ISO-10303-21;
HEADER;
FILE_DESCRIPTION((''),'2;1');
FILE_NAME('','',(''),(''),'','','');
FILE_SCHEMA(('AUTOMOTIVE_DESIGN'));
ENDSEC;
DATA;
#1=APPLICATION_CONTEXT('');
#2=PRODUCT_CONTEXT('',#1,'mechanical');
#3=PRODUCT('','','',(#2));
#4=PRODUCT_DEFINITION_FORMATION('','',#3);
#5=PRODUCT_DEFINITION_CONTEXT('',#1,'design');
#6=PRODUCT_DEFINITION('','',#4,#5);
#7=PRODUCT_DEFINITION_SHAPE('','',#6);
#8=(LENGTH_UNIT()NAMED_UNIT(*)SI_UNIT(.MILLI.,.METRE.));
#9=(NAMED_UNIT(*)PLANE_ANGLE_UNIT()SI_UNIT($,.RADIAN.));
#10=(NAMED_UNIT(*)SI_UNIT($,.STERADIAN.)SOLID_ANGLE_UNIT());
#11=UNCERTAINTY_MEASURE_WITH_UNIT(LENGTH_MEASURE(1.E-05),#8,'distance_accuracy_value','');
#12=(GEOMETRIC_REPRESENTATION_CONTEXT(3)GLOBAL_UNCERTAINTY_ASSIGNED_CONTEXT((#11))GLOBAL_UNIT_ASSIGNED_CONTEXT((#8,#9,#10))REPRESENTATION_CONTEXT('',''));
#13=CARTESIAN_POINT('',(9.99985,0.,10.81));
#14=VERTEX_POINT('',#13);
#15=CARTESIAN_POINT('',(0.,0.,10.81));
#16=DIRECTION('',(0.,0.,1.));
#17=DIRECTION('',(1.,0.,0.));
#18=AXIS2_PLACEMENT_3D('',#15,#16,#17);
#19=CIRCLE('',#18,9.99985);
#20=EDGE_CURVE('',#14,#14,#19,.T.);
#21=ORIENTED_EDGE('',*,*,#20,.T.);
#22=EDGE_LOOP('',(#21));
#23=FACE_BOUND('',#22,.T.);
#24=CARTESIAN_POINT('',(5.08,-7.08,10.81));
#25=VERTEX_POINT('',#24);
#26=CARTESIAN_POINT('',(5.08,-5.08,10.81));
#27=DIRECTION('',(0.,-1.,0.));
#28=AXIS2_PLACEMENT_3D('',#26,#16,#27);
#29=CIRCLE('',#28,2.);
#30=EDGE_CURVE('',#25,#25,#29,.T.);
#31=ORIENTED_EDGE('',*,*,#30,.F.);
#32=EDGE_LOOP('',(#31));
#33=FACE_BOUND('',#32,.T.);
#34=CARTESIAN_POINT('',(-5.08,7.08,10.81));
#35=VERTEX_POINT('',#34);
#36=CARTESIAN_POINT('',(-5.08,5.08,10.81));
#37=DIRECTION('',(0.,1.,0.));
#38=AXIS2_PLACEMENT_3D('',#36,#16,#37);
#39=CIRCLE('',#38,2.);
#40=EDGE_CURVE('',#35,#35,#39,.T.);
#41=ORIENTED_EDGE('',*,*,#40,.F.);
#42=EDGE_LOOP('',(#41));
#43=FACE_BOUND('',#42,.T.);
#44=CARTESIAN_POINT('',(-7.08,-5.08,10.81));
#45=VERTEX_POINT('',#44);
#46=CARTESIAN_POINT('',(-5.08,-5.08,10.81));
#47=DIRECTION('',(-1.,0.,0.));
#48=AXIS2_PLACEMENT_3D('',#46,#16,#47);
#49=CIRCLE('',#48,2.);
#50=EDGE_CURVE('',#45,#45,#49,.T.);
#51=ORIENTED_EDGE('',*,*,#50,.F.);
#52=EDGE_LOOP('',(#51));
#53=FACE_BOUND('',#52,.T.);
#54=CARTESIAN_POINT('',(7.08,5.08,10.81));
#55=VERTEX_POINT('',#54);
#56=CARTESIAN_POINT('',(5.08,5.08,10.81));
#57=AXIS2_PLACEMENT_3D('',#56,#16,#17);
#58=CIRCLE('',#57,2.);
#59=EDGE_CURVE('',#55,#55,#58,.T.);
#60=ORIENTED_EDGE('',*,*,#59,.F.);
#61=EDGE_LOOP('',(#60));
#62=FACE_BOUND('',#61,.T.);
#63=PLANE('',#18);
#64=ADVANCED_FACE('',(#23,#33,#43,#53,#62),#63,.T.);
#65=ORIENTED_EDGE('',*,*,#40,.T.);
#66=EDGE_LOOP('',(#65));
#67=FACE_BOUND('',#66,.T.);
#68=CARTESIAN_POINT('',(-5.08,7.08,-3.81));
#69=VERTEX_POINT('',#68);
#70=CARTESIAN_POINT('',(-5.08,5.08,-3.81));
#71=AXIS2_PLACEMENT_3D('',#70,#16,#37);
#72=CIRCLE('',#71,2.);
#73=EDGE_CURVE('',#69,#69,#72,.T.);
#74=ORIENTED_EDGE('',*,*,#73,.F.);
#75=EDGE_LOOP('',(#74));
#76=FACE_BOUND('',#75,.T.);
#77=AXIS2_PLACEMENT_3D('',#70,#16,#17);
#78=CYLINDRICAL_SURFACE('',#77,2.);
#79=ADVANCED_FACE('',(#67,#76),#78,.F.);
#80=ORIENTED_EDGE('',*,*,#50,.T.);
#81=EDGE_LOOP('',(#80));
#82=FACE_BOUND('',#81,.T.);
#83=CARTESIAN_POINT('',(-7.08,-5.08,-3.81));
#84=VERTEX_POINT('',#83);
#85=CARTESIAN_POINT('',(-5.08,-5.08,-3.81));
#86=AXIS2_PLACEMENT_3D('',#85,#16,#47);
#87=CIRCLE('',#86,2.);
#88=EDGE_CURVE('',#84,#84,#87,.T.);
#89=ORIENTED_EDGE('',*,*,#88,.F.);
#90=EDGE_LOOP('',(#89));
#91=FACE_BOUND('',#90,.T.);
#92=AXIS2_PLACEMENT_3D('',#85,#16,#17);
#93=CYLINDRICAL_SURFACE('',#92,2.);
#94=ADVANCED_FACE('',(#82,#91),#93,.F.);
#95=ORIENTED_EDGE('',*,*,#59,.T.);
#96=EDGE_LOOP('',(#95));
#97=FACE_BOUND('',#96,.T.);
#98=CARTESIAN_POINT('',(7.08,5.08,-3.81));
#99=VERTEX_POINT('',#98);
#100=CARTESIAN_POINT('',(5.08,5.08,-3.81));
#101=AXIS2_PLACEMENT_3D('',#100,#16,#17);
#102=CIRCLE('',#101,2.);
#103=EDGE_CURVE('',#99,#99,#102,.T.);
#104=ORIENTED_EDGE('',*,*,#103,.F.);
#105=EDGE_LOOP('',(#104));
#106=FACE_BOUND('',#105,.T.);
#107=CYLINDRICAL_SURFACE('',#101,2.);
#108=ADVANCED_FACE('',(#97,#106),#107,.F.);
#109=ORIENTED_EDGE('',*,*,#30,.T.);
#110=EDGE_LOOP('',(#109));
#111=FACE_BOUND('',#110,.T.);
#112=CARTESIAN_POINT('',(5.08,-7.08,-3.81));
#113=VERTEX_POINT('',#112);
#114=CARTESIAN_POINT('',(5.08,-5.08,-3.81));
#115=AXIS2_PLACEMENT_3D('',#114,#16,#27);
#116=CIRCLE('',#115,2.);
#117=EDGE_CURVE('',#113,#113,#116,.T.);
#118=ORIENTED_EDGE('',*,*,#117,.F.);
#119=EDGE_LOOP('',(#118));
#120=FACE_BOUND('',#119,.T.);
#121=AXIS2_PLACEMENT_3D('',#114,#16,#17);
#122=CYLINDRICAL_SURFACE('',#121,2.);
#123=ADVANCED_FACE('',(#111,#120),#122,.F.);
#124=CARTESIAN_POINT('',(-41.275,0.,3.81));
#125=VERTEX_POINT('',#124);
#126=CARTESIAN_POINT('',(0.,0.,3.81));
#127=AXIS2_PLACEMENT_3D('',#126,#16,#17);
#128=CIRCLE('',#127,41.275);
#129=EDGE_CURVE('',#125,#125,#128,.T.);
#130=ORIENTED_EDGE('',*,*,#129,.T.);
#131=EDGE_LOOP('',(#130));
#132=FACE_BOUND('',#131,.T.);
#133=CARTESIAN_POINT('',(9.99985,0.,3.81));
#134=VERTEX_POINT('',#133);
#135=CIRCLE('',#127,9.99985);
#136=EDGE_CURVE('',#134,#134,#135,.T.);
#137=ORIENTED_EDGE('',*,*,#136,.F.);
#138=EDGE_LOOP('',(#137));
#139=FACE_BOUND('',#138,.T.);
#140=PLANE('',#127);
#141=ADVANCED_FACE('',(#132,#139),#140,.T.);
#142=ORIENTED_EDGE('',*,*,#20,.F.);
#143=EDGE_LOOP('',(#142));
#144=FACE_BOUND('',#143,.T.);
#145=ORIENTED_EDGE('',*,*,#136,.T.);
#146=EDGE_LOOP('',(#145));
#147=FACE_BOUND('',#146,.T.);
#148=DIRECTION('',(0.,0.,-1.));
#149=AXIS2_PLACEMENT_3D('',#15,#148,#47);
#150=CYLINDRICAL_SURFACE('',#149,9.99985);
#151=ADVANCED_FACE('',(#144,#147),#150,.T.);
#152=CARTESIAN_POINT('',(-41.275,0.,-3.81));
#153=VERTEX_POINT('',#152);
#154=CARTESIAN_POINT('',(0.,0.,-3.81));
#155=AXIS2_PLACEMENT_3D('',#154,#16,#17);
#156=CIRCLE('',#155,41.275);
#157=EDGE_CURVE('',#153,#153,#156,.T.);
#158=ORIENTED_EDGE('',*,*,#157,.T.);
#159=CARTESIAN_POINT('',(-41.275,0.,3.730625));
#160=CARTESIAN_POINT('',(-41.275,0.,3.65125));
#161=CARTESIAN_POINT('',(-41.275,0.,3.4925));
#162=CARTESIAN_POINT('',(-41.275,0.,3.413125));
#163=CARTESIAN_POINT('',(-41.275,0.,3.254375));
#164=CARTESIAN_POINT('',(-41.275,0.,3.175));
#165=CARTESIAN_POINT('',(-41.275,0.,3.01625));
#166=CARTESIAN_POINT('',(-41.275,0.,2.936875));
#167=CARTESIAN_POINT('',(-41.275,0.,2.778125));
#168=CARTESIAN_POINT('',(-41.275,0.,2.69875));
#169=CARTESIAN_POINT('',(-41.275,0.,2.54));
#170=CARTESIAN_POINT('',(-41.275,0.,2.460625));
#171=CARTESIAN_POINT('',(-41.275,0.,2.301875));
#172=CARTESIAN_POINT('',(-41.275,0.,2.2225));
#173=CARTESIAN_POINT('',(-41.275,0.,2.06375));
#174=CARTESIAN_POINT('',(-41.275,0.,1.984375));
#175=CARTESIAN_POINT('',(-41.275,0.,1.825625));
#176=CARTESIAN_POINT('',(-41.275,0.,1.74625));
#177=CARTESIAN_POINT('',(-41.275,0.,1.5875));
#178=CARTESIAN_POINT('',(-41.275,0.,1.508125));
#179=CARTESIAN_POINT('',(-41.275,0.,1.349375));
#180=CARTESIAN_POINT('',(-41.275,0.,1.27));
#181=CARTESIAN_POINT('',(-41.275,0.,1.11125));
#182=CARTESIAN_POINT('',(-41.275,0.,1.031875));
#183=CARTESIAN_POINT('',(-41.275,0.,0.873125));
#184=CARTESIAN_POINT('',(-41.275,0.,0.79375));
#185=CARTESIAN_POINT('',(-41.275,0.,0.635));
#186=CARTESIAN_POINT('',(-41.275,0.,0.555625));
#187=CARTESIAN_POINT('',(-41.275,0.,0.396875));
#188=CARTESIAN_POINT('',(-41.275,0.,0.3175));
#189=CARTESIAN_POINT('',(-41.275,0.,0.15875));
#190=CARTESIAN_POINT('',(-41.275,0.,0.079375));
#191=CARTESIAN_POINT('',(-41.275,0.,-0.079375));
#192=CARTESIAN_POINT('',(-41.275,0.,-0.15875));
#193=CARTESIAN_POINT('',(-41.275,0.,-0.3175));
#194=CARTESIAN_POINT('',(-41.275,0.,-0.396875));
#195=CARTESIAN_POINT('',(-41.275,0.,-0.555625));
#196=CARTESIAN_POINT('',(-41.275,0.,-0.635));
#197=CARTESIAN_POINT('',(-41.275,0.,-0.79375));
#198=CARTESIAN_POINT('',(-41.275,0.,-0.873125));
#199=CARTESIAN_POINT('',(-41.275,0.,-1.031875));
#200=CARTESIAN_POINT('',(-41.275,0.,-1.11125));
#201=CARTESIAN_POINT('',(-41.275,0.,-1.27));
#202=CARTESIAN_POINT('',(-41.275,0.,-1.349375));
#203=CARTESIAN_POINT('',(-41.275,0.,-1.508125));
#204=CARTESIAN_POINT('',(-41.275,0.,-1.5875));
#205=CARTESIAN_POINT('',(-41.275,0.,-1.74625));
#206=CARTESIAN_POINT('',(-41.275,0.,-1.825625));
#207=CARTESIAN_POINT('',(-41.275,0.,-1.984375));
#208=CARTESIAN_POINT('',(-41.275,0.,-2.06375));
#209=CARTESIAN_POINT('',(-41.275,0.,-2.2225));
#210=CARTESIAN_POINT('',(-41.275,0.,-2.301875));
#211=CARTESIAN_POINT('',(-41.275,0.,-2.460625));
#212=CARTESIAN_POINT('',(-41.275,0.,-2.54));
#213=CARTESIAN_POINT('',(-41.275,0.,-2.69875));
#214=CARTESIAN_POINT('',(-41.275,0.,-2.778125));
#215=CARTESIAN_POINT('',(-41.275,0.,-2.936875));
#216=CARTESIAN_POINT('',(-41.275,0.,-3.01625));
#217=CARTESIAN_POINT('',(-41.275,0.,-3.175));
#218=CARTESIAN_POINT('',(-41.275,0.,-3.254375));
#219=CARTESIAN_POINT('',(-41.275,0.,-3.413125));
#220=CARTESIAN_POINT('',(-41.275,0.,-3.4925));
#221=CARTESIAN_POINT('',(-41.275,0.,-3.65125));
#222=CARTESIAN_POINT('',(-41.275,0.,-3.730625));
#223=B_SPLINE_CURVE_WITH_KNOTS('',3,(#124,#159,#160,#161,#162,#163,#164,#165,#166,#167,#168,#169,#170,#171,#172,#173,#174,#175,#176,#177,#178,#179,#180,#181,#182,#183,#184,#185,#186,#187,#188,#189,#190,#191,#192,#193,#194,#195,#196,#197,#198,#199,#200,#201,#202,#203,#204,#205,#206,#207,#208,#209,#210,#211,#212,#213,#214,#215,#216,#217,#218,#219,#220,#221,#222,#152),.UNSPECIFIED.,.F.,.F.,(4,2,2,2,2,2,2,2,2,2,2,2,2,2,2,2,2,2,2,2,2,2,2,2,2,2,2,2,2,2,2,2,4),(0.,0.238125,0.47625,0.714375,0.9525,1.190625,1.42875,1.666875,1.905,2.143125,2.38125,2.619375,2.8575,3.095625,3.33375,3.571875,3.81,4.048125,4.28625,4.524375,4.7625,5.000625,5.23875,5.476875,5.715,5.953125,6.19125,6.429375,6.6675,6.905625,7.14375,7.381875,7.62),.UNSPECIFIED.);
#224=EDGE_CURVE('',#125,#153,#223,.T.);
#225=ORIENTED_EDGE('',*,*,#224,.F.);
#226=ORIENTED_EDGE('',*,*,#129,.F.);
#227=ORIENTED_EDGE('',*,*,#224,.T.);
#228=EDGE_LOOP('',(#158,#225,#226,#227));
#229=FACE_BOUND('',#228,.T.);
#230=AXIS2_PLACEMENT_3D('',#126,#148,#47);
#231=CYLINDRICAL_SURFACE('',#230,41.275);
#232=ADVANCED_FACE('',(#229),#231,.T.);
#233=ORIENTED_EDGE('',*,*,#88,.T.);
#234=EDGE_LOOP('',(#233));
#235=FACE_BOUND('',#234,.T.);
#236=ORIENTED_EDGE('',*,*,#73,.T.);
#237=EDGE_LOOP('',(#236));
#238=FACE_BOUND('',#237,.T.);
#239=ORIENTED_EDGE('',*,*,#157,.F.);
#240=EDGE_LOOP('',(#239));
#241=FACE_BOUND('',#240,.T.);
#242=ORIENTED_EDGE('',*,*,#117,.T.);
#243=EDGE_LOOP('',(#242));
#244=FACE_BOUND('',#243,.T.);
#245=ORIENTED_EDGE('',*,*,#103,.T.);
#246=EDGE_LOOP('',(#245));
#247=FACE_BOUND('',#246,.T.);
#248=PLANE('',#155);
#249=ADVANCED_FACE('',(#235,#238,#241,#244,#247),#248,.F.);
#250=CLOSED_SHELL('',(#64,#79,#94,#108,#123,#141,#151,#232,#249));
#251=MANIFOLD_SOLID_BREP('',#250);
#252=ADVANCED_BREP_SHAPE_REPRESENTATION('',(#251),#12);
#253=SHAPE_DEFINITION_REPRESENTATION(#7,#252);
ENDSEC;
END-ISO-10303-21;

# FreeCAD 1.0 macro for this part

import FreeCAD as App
import Part
import Sketcher

V = App.Vector

doc = App.newDocument("Part")
params = doc.addObject("Spreadsheet::Sheet", "Params")
for row, (alias, value) in enumerate([
    ("sketch1_diameter", "82.55 mm"),
    ("pad1_length", "7.62 mm"),
    ("pad2_length", "7 mm"),
    ("sketch3_diameter", "4 mm"),
], start=1):
    params.set(f"A{row}", alias)
    params.set(f"B{row}", "=" + value)
    params.setAlias(f"B{row}", alias)

body = doc.addObject("PartDesign::Body", "Body")

sketch1 = body.newObject("Sketcher::SketchObject", "Sketch")
sketch1.AttachmentSupport = (doc.getObject("XY_Plane"), [""])
sketch1.MapMode = "FlatFace"
sketch1.addGeometry(Part.Circle(V(0, 0, 0), V(0, 0, 1), 41), False)
sketch1.addConstraint([
    Sketcher.Constraint("Coincident", 0, 3, -1, 1),
    Sketcher.Constraint("Diameter", 0, 82.55),
])
sketch1.setExpression("Constraints[1]", "Params.sketch1_diameter")
pad1 = body.newObject("PartDesign::Pad", "Pad")
pad1.Profile = sketch1
pad1.setExpression("Length", "Params.pad1_length")
pad1.Midplane = True

sketch2 = body.newObject("Sketcher::SketchObject", "Sketch001")
sketch2.AttachmentSupport = (doc.getObject("XY_Plane"), [""])
sketch2.MapMode = "FlatFace"
sketch2.AttachmentOffset = App.Placement(V(0, 0, 3.81), App.Rotation())
sketch2.addGeometry(Part.Circle(V(0, 0, 0), V(0, 0, 1), 10), False)
sketch2.addConstraint([
    Sketcher.Constraint("Coincident", 0, 3, -1, 1),
    Sketcher.Constraint("Diameter", 0, 19.9997),
])
pad2 = body.newObject("PartDesign::Pad", "Pad001")
pad2.Profile = sketch2
pad2.setExpression("Length", "Params.pad2_length")

sketch3 = body.newObject("Sketcher::SketchObject", "Sketch002")
sketch3.AttachmentSupport = (doc.getObject("XY_Plane"), [""])
sketch3.MapMode = "FlatFace"
sketch3.AttachmentOffset = App.Placement(V(0, 0, 10.81), App.Rotation())
sketch3.addGeometry(Part.Circle(V(5.1, 5.1, 0), V(0, 0, 1), 2), False)
sketch3.addConstraint([
    Sketcher.Constraint("Diameter", 0, 4.0),
    Sketcher.Constraint("DistanceX", -1, 1, 0, 3, 5.08),
    Sketcher.Constraint("DistanceY", -1, 1, 0, 3, 5.08),
])
sketch3.setExpression("Constraints[0]", "Params.sketch3_diameter")
pocket1 = body.newObject("PartDesign::Pocket", "Pocket")
pocket1.Profile = sketch3
pocket1.Type = "ThroughAll"
doc.recompute()

polarpattern = body.newObject("PartDesign::PolarPattern", "PolarPattern")
polarpattern.Originals = [pocket1]
polarpattern.Axis = (doc.getObject("Z_Axis"), [""])
polarpattern.Angle = 360
polarpattern.Occurrences = 4
body.Tip = polarpattern

doc.recompute()
